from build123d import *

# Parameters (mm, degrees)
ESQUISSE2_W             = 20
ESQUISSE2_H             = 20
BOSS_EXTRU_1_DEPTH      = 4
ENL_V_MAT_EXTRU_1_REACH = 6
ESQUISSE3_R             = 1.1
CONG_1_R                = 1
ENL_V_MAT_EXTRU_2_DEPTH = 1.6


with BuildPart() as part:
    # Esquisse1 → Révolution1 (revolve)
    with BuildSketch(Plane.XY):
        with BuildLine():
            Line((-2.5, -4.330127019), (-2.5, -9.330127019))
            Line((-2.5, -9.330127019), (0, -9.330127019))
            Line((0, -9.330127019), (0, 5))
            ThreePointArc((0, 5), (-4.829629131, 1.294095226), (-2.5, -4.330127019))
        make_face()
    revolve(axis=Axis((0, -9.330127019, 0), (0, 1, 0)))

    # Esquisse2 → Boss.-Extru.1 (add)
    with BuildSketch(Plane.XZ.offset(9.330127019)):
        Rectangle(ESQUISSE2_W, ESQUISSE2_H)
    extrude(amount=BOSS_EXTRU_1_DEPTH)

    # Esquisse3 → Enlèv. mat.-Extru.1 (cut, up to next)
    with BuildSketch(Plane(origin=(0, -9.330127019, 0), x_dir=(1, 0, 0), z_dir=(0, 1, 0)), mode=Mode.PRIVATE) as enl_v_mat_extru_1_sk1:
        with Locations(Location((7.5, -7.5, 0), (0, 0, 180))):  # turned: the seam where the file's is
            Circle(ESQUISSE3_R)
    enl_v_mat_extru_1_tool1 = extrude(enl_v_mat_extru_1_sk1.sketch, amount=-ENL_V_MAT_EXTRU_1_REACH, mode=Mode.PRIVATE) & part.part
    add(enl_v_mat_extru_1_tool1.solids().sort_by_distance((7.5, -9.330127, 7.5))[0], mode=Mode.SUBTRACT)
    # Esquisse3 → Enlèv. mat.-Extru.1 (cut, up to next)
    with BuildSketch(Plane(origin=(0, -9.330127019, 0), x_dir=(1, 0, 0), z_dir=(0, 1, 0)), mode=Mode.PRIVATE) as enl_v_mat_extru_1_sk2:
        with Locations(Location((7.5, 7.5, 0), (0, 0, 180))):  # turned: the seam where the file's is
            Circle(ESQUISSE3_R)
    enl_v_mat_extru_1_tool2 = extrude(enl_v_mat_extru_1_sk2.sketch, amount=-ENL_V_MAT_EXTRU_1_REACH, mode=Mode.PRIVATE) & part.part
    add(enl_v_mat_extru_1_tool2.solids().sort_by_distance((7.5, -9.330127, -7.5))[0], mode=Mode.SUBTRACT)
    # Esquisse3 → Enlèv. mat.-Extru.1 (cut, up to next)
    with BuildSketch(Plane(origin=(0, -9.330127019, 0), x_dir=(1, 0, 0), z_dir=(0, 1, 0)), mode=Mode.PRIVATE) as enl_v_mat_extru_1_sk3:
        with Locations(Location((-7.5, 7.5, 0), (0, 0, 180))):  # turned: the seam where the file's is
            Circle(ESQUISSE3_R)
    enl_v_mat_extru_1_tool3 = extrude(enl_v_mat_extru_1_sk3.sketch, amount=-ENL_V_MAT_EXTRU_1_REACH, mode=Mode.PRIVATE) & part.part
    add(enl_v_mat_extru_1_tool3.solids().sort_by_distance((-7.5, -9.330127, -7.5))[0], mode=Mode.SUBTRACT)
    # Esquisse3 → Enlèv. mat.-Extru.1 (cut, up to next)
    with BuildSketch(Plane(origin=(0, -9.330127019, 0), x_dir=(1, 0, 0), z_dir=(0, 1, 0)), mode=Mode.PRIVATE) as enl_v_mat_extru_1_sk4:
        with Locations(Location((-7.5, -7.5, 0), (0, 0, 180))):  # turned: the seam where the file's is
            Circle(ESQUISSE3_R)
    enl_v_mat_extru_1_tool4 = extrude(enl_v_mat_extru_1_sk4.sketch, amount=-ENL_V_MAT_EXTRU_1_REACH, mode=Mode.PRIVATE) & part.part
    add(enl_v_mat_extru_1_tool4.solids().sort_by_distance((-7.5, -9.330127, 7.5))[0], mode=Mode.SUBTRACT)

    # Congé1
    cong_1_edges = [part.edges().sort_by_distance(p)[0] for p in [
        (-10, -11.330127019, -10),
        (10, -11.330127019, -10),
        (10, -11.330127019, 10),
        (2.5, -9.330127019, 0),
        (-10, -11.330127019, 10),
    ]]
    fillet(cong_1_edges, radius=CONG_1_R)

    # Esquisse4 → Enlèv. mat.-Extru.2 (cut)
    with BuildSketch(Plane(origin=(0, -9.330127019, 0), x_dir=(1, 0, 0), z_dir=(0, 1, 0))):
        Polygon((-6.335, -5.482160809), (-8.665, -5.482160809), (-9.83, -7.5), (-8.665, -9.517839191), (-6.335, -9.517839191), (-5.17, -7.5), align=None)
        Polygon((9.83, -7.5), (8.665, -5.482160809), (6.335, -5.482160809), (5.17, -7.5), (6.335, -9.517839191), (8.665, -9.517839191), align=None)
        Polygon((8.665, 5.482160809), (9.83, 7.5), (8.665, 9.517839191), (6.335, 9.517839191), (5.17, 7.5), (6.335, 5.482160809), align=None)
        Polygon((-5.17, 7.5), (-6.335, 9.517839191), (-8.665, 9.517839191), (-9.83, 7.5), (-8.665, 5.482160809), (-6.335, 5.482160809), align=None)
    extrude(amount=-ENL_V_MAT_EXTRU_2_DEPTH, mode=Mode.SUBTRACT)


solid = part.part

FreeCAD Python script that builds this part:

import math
import FreeCAD as App
import Part
import Sketcher

V = App.Vector
Q = App.Units.Quantity


def edges_at(feature, points):
    """Names of the edges that pass closest to the given points."""
    edges = feature.Shape.Edges
    near = lambda p: min(range(len(edges)), key=lambda i: edges[i].distToShape(Part.Vertex(*p))[0])
    return sorted({f"Edge{near(p) + 1}" for p in points})

doc = App.newDocument("Part")
params = doc.addObject("Spreadsheet::Sheet", "Params")
for row, (alias, value) in enumerate([
    ("sketch1_radius", "5 mm"),
    ("sketch1_height", "5 mm"),
    ("sketch1_width", "2.5 mm"),
    ("revolution_angle", "360 deg"),
    ("sketch2_width", "20 mm"),
    ("pad1_length", "4 mm"),
    ("sketch3_diameter", "2.2 mm"),
    ("sketch4_diameter", "2.2 mm"),
    ("sketch5_diameter", "2.2 mm"),
    ("sketch6_diameter", "2.2 mm"),
    ("fillet_radius", "1 mm"),
    ("sketch7_width", "2.33 mm"),
    ("sketch7_length", "2.33 mm"),
    ("pocket5_length", "1.6 mm"),
], start=1):
    params.set(f"A{row}", alias)
    params.set(f"B{row}", "=" + value)
    params.setAlias(f"B{row}", alias)

body = doc.addObject("PartDesign::Body", "Body")

# Sketch on XY plane
sketch1 = doc.addObject("Sketcher::SketchObject", "Sketch")
body.addObject(sketch1)
sketch1.AttachmentSupport = (doc.XY_Plane, [""])
sketch1.MapMode = "FlatFace"
sketch1.addGeometry(Part.LineSegment(V(-2.5, -4.330127, 0), V(-2.5, -9.330127, 0)), False)
sketch1.addGeometry(Part.LineSegment(V(-2.5, -9.330127, 0), V(0, -9.330127, 0)), False)
sketch1.addGeometry(Part.LineSegment(V(0, -9.330127, 0), V(0, 5, 0)), False)
sketch1.addGeometry(Part.ArcOfCircle(Part.Circle(V(0, 0, 0), V(0, 0, 1), 5), math.radians(90), math.radians(240)), False)
sketch1.addConstraint(Sketcher.Constraint("Coincident", 0, 2, 1, 1))
sketch1.addConstraint(Sketcher.Constraint("Coincident", 1, 2, 2, 1))
sketch1.addConstraint(Sketcher.Constraint("Coincident", 2, 2, 3, 1))
sketch1.addConstraint(Sketcher.Constraint("Coincident", 3, 2, 0, 1))
sketch1.addConstraint(Sketcher.Constraint("Vertical", 0))
sketch1.addConstraint(Sketcher.Constraint("Horizontal", 1))
sketch1.addConstraint(Sketcher.Constraint("Vertical", 2))
sketch1.addConstraint(Sketcher.Constraint("Coincident", 3, 3, -1, 1))
sketch1.addConstraint(Sketcher.Constraint("PointOnObject", 1, 2, -2))
sketch1.addConstraint(Sketcher.Constraint("Radius", 3, Q("5 mm")))
sketch1.addConstraint(Sketcher.Constraint("DistanceY", 0, 2, 0, 1, Q("5 mm")))
sketch1.addConstraint(Sketcher.Constraint("DistanceX", 1, 1, 1, 2, Q("2.5 mm")))
sketch1.setExpression("Constraints[9]", "Params.sketch1_radius")
sketch1.setExpression("Constraints[10]", "Params.sketch1_height")
sketch1.setExpression("Constraints[11]", "Params.sketch1_width")
revolution = doc.addObject("PartDesign::Revolution", "Revolution")
body.addObject(revolution)
revolution.Profile = sketch1
revolution.ReferenceAxis = (sketch1, ["V_Axis"])
revolution.setExpression("Angle", "Params.revolution_angle")

# Sketch on XZ plane
sketch2 = doc.addObject("Sketcher::SketchObject", "Sketch001")
body.addObject(sketch2)
sketch2.AttachmentSupport = (doc.XZ_Plane, [""])
sketch2.MapMode = "FlatFace"
sketch2.AttachmentOffset = App.Placement(V(0, 0, 9.330127), App.Rotation())
sketch2.addGeometry(Part.LineSegment(V(-10, 10, 0), V(-10, -10, 0)), False)
sketch2.addGeometry(Part.LineSegment(V(-10, -10, 0), V(10, -10, 0)), False)
sketch2.addGeometry(Part.LineSegment(V(10, -10, 0), V(10, 10, 0)), False)
sketch2.addGeometry(Part.LineSegment(V(10, 10, 0), V(-10, 10, 0)), False)
sketch2.addConstraint(Sketcher.Constraint("Coincident", 0, 2, 1, 1))
sketch2.addConstraint(Sketcher.Constraint("Coincident", 1, 2, 2, 1))
sketch2.addConstraint(Sketcher.Constraint("Coincident", 2, 2, 3, 1))
sketch2.addConstraint(Sketcher.Constraint("Coincident", 3, 2, 0, 1))
sketch2.addConstraint(Sketcher.Constraint("Vertical", 0))
sketch2.addConstraint(Sketcher.Constraint("Horizontal", 1))
sketch2.addConstraint(Sketcher.Constraint("Vertical", 2))
sketch2.addConstraint(Sketcher.Constraint("Horizontal", 3))
sketch2.addConstraint(Sketcher.Constraint("Symmetric", 0, 2, 2, 2, -1, 1))
sketch2.addConstraint(Sketcher.Constraint("Equal", 3, 0))
sketch2.addConstraint(Sketcher.Constraint("DistanceX", 1, 1, 1, 2, Q("20 mm")))
sketch2.setExpression("Constraints[10]", "Params.sketch2_width")
pad1 = doc.addObject("PartDesign::Pad", "Pad")
body.addObject(pad1)
pad1.Profile = sketch2
pad1.setExpression("Length", "Params.pad1_length")

# Sketch on XZ plane
sketch3 = doc.addObject("Sketcher::SketchObject", "Sketch002")
body.addObject(sketch3)
sketch3.AttachmentSupport = (doc.XZ_Plane, [""])
sketch3.MapMode = "FlatFace"
sketch3.AttachmentOffset = App.Placement(V(0, 0, 9.330127), App.Rotation())
sketch3.addGeometry(Part.Circle(V(7.5, 7.5, 0), V(0, 0, 1), 1.1), False)
sketch3.addConstraint(Sketcher.Constraint("Diameter", 0, Q("2.2 mm")))
sketch3.addConstraint(Sketcher.Constraint("DistanceX", -1, 1, 0, 3, Q("7.5 mm")))
sketch3.addConstraint(Sketcher.Constraint("DistanceY", -1, 1, 0, 3, Q("7.5 mm")))
sketch3.setExpression("Constraints[0]", "Params.sketch3_diameter")
pocket1 = doc.addObject("PartDesign::Pocket", "Pocket")
body.addObject(pocket1)
pocket1.Profile = sketch3
pocket1.Type = "UpToFirst"
pocket1.Reversed = True

# Sketch on XZ plane
sketch4 = doc.addObject("Sketcher::SketchObject", "Sketch003")
body.addObject(sketch4)
sketch4.AttachmentSupport = (doc.XZ_Plane, [""])
sketch4.MapMode = "FlatFace"
sketch4.AttachmentOffset = App.Placement(V(0, 0, 9.330127), App.Rotation())
sketch4.addGeometry(Part.Circle(V(7.5, -7.5, 0), V(0, 0, 1), 1.1), False)
sketch4.addConstraint(Sketcher.Constraint("Diameter", 0, Q("2.2 mm")))
sketch4.addConstraint(Sketcher.Constraint("DistanceX", -1, 1, 0, 3, Q("7.5 mm")))
sketch4.addConstraint(Sketcher.Constraint("DistanceY", 0, 3, -1, 1, Q("7.5 mm")))
sketch4.setExpression("Constraints[0]", "Params.sketch4_diameter")
pocket2 = doc.addObject("PartDesign::Pocket", "Pocket001")
body.addObject(pocket2)
pocket2.Profile = sketch4
pocket2.Type = "UpToFirst"
pocket2.Reversed = True

# Sketch on XZ plane
sketch5 = doc.addObject("Sketcher::SketchObject", "Sketch004")
body.addObject(sketch5)
sketch5.AttachmentSupport = (doc.XZ_Plane, [""])
sketch5.MapMode = "FlatFace"
sketch5.AttachmentOffset = App.Placement(V(0, 0, 9.330127), App.Rotation())
sketch5.addGeometry(Part.Circle(V(-7.5, -7.5, 0), V(0, 0, 1), 1.1), False)
sketch5.addConstraint(Sketcher.Constraint("Diameter", 0, Q("2.2 mm")))
sketch5.addConstraint(Sketcher.Constraint("DistanceX", 0, 3, -1, 1, Q("7.5 mm")))
sketch5.addConstraint(Sketcher.Constraint("DistanceY", 0, 3, -1, 1, Q("7.5 mm")))
sketch5.setExpression("Constraints[0]", "Params.sketch5_diameter")
pocket3 = doc.addObject("PartDesign::Pocket", "Pocket002")
body.addObject(pocket3)
pocket3.Profile = sketch5
pocket3.Type = "UpToFirst"
pocket3.Reversed = True

# Sketch on XZ plane
sketch6 = doc.addObject("Sketcher::SketchObject", "Sketch005")
body.addObject(sketch6)
sketch6.AttachmentSupport = (doc.XZ_Plane, [""])
sketch6.MapMode = "FlatFace"
sketch6.AttachmentOffset = App.Placement(V(0, 0, 9.330127), App.Rotation())
sketch6.addGeometry(Part.Circle(V(-7.5, 7.5, 0), V(0, 0, 1), 1.1), False)
sketch6.addConstraint(Sketcher.Constraint("Diameter", 0, Q("2.2 mm")))
sketch6.addConstraint(Sketcher.Constraint("DistanceX", 0, 3, -1, 1, Q("7.5 mm")))
sketch6.addConstraint(Sketcher.Constraint("DistanceY", -1, 1, 0, 3, Q("7.5 mm")))
sketch6.setExpression("Constraints[0]", "Params.sketch6_diameter")
pocket4 = doc.addObject("PartDesign::Pocket", "Pocket003")
body.addObject(pocket4)
pocket4.Profile = sketch6
pocket4.Type = "UpToFirst"
pocket4.Reversed = True
doc.recompute()

fillet = doc.addObject("PartDesign::Fillet", "Fillet")
body.addObject(fillet)
fillet.Base = (pocket4, edges_at(pocket4, [
    (-10, -11.33, -10),
    (10, -11.33, -10),
    (10, -11.33, 10),
    (2.5, -9.33, 0),
    (-10, -11.33, 10),
]))
fillet.setExpression("Radius", "Params.fillet_radius")

# Sketch on XZ plane
sketch7 = doc.addObject("Sketcher::SketchObject", "Sketch006")
body.addObject(sketch7)
sketch7.AttachmentSupport = (doc.XZ_Plane, [""])
sketch7.MapMode = "FlatFace"
sketch7.AttachmentOffset = App.Placement(V(0, 0, 9.330127), App.Rotation())
sketch7.addGeometry(Part.LineSegment(V(-6.335, 5.482161, 0), V(-8.665, 5.482161, 0)), False)
sketch7.addGeometry(Part.LineSegment(V(-8.665, 5.482161, 0), V(-9.83, 7.5, 0)), False)
sketch7.addGeometry(Part.LineSegment(V(-9.83, 7.5, 0), V(-8.665, 9.517839, 0)), False)
sketch7.addGeometry(Part.LineSegment(V(-8.665, 9.517839, 0), V(-6.335, 9.517839, 0)), False)
sketch7.addGeometry(Part.LineSegment(V(-6.335, 9.517839, 0), V(-5.17, 7.5, 0)), False)
sketch7.addGeometry(Part.LineSegment(V(-5.17, 7.5, 0), V(-6.335, 5.482161, 0)), False)
sketch7.addGeometry(Part.LineSegment(V(9.83, 7.5, 0), V(8.665, 5.482161, 0)), False)
sketch7.addGeometry(Part.LineSegment(V(8.665, 5.482161, 0), V(6.335, 5.482161, 0)), False)
sketch7.addGeometry(Part.LineSegment(V(6.335, 5.482161, 0), V(5.17, 7.5, 0)), False)
sketch7.addGeometry(Part.LineSegment(V(5.17, 7.5, 0), V(6.335, 9.517839, 0)), False)
sketch7.addGeometry(Part.LineSegment(V(6.335, 9.517839, 0), V(8.665, 9.517839, 0)), False)
sketch7.addGeometry(Part.LineSegment(V(8.665, 9.517839, 0), V(9.83, 7.5, 0)), False)
sketch7.addGeometry(Part.LineSegment(V(8.665, -5.482161, 0), V(9.83, -7.5, 0)), False)
sketch7.addGeometry(Part.LineSegment(V(9.83, -7.5, 0), V(8.665, -9.517839, 0)), False)
sketch7.addGeometry(Part.LineSegment(V(8.665, -9.517839, 0), V(6.335, -9.517839, 0)), False)
sketch7.addGeometry(Part.LineSegment(V(6.335, -9.517839, 0), V(5.17, -7.5, 0)), False)
sketch7.addGeometry(Part.LineSegment(V(5.17, -7.5, 0), V(6.335, -5.482161, 0)), False)
sketch7.addGeometry(Part.LineSegment(V(6.335, -5.482161, 0), V(8.665, -5.482161, 0)), False)
sketch7.addGeometry(Part.LineSegment(V(-5.17, -7.5, 0), V(-6.335, -9.517839, 0)), False)
sketch7.addGeometry(Part.LineSegment(V(-6.335, -9.517839, 0), V(-8.665, -9.517839, 0)), False)
sketch7.addGeometry(Part.LineSegment(V(-8.665, -9.517839, 0), V(-9.83, -7.5, 0)), False)
sketch7.addGeometry(Part.LineSegment(V(-9.83, -7.5, 0), V(-8.665, -5.482161, 0)), False)
sketch7.addGeometry(Part.LineSegment(V(-8.665, -5.482161, 0), V(-6.335, -5.482161, 0)), False)
sketch7.addGeometry(Part.LineSegment(V(-6.335, -5.482161, 0), V(-5.17, -7.5, 0)), False)
sketch7.addConstraint(Sketcher.Constraint("Coincident", 0, 2, 1, 1))
sketch7.addConstraint(Sketcher.Constraint("Coincident", 1, 2, 2, 1))
sketch7.addConstraint(Sketcher.Constraint("Coincident", 2, 2, 3, 1))
sketch7.addConstraint(Sketcher.Constraint("Coincident", 3, 2, 4, 1))
sketch7.addConstraint(Sketcher.Constraint("Coincident", 4, 2, 5, 1))
sketch7.addConstraint(Sketcher.Constraint("Coincident", 5, 2, 0, 1))
sketch7.addConstraint(Sketcher.Constraint("Coincident", 6, 2, 7, 1))
sketch7.addConstraint(Sketcher.Constraint("Coincident", 7, 2, 8, 1))
sketch7.addConstraint(Sketcher.Constraint("Coincident", 8, 2, 9, 1))
sketch7.addConstraint(Sketcher.Constraint("Coincident", 9, 2, 10, 1))
sketch7.addConstraint(Sketcher.Constraint("Coincident", 10, 2, 11, 1))
sketch7.addConstraint(Sketcher.Constraint("Coincident", 11, 2, 6, 1))
sketch7.addConstraint(Sketcher.Constraint("Coincident", 12, 2, 13, 1))
sketch7.addConstraint(Sketcher.Constraint("Coincident", 13, 2, 14, 1))
sketch7.addConstraint(Sketcher.Constraint("Coincident", 14, 2, 15, 1))
sketch7.addConstraint(Sketcher.Constraint("Coincident", 15, 2, 16, 1))
sketch7.addConstraint(Sketcher.Constraint("Coincident", 16, 2, 17, 1))
sketch7.addConstraint(Sketcher.Constraint("Coincident", 17, 2, 12, 1))
sketch7.addConstraint(Sketcher.Constraint("Coincident", 18, 2, 19, 1))
sketch7.addConstraint(Sketcher.Constraint("Coincident", 19, 2, 20, 1))
sketch7.addConstraint(Sketcher.Constraint("Coincident", 20, 2, 21, 1))
sketch7.addConstraint(Sketcher.Constraint("Coincident", 21, 2, 22, 1))
sketch7.addConstraint(Sketcher.Constraint("Coincident", 22, 2, 23, 1))
sketch7.addConstraint(Sketcher.Constraint("Coincident", 23, 2, 18, 1))
sketch7.addConstraint(Sketcher.Constraint("Horizontal", 0))
sketch7.addConstraint(Sketcher.Constraint("Horizontal", 3))
sketch7.addConstraint(Sketcher.Constraint("Horizontal", 7))
sketch7.addConstraint(Sketcher.Constraint("Horizontal", 10))
sketch7.addConstraint(Sketcher.Constraint("Horizontal", 14))
sketch7.addConstraint(Sketcher.Constraint("Horizontal", 17))
sketch7.addConstraint(Sketcher.Constraint("Horizontal", 19))
sketch7.addConstraint(Sketcher.Constraint("Horizontal", 22))
sketch7.addConstraint(Sketcher.Constraint("Symmetric", 1, 2, 12, 2, -1, 1))
sketch7.addConstraint(Sketcher.Constraint("Symmetric", 2, 2, 13, 2, -1, 1))
sketch7.addConstraint(Sketcher.Constraint("Symmetric", 4, 2, 15, 2, -1, 1))
sketch7.addConstraint(Sketcher.Constraint("Symmetric", 5, 2, 16, 2, -1, 1))
sketch7.addConstraint(Sketcher.Constraint("Symmetric", 9, 2, 18, 2, -1, 1))
sketch7.addConstraint(Sketcher.Constraint("Symmetric", 11, 2, 20, 2, -1, 1))
sketch7.addConstraint(Sketcher.Constraint("Symmetric", 6, 2, 21, 2, -1, 1))
sketch7.addConstraint(Sketcher.Constraint("Symmetric", 8, 2, 23, 2, -1, 1))
sketch7.addConstraint(Sketcher.Constraint("Symmetric", 0, 2, 6, 2, -2))
sketch7.addConstraint(Sketcher.Constraint("Symmetric", 4, 2, 8, 2, -2))
sketch7.addConstraint(Sketcher.Constraint("Symmetric", 3, 2, 9, 2, -2))
sketch7.addConstraint(Sketcher.Constraint("Symmetric", 1, 2, 11, 2, -2))
sketch7.addConstraint(Sketcher.Constraint("Parallel", 1, 4))
sketch7.addConstraint(Sketcher.Constraint("Parallel", 2, 5))
sketch7.addConstraint(Sketcher.Constraint("Parallel", 5, 6))
sketch7.addConstraint(Sketcher.Constraint("Parallel", 4, 8))
sketch7.addConstraint(Sketcher.Constraint("Parallel", 8, 11))
sketch7.addConstraint(Sketcher.Constraint("Parallel", 11, 12))
sketch7.addConstraint(Sketcher.Constraint("Parallel", 12, 15))
sketch7.addConstraint(Sketcher.Constraint("Parallel", 15, 20))
sketch7.addConstraint(Sketcher.Constraint("Parallel", 20, 23))
sketch7.addConstraint(Sketcher.Constraint("Horizontal", 1, 2, 4, 2))
sketch7.addConstraint(Sketcher.Constraint("Vertical", 0, 2, 2, 2))
sketch7.addConstraint(Sketcher.Constraint("Angle", 1, Q("120 deg")))
sketch7.addConstraint(Sketcher.Constraint("DistanceX", 5, 2, 6, 2, Q("15 mm")))
sketch7.addConstraint(Sketcher.Constraint("DistanceY", 12, 2, 11, 2, Q("15 mm")))
sketch7.addConstraint(Sketcher.Constraint("DistanceX", 0, 2, 0, 1, Q("2.33 mm")))
sketch7.addConstraint(Sketcher.Constraint("Distance", 1, Q("2.33 mm")))
sketch7.setExpression("Constraints[58]", "Params.sketch7_width")
sketch7.setExpression("Constraints[59]", "Params.sketch7_length")
pocket5 = doc.addObject("PartDesign::Pocket", "Pocket004")
body.addObject(pocket5)
pocket5.Profile = sketch7
pocket5.setExpression("Length", "Params.pocket5_length")
pocket5.Reversed = True

doc.recompute()
